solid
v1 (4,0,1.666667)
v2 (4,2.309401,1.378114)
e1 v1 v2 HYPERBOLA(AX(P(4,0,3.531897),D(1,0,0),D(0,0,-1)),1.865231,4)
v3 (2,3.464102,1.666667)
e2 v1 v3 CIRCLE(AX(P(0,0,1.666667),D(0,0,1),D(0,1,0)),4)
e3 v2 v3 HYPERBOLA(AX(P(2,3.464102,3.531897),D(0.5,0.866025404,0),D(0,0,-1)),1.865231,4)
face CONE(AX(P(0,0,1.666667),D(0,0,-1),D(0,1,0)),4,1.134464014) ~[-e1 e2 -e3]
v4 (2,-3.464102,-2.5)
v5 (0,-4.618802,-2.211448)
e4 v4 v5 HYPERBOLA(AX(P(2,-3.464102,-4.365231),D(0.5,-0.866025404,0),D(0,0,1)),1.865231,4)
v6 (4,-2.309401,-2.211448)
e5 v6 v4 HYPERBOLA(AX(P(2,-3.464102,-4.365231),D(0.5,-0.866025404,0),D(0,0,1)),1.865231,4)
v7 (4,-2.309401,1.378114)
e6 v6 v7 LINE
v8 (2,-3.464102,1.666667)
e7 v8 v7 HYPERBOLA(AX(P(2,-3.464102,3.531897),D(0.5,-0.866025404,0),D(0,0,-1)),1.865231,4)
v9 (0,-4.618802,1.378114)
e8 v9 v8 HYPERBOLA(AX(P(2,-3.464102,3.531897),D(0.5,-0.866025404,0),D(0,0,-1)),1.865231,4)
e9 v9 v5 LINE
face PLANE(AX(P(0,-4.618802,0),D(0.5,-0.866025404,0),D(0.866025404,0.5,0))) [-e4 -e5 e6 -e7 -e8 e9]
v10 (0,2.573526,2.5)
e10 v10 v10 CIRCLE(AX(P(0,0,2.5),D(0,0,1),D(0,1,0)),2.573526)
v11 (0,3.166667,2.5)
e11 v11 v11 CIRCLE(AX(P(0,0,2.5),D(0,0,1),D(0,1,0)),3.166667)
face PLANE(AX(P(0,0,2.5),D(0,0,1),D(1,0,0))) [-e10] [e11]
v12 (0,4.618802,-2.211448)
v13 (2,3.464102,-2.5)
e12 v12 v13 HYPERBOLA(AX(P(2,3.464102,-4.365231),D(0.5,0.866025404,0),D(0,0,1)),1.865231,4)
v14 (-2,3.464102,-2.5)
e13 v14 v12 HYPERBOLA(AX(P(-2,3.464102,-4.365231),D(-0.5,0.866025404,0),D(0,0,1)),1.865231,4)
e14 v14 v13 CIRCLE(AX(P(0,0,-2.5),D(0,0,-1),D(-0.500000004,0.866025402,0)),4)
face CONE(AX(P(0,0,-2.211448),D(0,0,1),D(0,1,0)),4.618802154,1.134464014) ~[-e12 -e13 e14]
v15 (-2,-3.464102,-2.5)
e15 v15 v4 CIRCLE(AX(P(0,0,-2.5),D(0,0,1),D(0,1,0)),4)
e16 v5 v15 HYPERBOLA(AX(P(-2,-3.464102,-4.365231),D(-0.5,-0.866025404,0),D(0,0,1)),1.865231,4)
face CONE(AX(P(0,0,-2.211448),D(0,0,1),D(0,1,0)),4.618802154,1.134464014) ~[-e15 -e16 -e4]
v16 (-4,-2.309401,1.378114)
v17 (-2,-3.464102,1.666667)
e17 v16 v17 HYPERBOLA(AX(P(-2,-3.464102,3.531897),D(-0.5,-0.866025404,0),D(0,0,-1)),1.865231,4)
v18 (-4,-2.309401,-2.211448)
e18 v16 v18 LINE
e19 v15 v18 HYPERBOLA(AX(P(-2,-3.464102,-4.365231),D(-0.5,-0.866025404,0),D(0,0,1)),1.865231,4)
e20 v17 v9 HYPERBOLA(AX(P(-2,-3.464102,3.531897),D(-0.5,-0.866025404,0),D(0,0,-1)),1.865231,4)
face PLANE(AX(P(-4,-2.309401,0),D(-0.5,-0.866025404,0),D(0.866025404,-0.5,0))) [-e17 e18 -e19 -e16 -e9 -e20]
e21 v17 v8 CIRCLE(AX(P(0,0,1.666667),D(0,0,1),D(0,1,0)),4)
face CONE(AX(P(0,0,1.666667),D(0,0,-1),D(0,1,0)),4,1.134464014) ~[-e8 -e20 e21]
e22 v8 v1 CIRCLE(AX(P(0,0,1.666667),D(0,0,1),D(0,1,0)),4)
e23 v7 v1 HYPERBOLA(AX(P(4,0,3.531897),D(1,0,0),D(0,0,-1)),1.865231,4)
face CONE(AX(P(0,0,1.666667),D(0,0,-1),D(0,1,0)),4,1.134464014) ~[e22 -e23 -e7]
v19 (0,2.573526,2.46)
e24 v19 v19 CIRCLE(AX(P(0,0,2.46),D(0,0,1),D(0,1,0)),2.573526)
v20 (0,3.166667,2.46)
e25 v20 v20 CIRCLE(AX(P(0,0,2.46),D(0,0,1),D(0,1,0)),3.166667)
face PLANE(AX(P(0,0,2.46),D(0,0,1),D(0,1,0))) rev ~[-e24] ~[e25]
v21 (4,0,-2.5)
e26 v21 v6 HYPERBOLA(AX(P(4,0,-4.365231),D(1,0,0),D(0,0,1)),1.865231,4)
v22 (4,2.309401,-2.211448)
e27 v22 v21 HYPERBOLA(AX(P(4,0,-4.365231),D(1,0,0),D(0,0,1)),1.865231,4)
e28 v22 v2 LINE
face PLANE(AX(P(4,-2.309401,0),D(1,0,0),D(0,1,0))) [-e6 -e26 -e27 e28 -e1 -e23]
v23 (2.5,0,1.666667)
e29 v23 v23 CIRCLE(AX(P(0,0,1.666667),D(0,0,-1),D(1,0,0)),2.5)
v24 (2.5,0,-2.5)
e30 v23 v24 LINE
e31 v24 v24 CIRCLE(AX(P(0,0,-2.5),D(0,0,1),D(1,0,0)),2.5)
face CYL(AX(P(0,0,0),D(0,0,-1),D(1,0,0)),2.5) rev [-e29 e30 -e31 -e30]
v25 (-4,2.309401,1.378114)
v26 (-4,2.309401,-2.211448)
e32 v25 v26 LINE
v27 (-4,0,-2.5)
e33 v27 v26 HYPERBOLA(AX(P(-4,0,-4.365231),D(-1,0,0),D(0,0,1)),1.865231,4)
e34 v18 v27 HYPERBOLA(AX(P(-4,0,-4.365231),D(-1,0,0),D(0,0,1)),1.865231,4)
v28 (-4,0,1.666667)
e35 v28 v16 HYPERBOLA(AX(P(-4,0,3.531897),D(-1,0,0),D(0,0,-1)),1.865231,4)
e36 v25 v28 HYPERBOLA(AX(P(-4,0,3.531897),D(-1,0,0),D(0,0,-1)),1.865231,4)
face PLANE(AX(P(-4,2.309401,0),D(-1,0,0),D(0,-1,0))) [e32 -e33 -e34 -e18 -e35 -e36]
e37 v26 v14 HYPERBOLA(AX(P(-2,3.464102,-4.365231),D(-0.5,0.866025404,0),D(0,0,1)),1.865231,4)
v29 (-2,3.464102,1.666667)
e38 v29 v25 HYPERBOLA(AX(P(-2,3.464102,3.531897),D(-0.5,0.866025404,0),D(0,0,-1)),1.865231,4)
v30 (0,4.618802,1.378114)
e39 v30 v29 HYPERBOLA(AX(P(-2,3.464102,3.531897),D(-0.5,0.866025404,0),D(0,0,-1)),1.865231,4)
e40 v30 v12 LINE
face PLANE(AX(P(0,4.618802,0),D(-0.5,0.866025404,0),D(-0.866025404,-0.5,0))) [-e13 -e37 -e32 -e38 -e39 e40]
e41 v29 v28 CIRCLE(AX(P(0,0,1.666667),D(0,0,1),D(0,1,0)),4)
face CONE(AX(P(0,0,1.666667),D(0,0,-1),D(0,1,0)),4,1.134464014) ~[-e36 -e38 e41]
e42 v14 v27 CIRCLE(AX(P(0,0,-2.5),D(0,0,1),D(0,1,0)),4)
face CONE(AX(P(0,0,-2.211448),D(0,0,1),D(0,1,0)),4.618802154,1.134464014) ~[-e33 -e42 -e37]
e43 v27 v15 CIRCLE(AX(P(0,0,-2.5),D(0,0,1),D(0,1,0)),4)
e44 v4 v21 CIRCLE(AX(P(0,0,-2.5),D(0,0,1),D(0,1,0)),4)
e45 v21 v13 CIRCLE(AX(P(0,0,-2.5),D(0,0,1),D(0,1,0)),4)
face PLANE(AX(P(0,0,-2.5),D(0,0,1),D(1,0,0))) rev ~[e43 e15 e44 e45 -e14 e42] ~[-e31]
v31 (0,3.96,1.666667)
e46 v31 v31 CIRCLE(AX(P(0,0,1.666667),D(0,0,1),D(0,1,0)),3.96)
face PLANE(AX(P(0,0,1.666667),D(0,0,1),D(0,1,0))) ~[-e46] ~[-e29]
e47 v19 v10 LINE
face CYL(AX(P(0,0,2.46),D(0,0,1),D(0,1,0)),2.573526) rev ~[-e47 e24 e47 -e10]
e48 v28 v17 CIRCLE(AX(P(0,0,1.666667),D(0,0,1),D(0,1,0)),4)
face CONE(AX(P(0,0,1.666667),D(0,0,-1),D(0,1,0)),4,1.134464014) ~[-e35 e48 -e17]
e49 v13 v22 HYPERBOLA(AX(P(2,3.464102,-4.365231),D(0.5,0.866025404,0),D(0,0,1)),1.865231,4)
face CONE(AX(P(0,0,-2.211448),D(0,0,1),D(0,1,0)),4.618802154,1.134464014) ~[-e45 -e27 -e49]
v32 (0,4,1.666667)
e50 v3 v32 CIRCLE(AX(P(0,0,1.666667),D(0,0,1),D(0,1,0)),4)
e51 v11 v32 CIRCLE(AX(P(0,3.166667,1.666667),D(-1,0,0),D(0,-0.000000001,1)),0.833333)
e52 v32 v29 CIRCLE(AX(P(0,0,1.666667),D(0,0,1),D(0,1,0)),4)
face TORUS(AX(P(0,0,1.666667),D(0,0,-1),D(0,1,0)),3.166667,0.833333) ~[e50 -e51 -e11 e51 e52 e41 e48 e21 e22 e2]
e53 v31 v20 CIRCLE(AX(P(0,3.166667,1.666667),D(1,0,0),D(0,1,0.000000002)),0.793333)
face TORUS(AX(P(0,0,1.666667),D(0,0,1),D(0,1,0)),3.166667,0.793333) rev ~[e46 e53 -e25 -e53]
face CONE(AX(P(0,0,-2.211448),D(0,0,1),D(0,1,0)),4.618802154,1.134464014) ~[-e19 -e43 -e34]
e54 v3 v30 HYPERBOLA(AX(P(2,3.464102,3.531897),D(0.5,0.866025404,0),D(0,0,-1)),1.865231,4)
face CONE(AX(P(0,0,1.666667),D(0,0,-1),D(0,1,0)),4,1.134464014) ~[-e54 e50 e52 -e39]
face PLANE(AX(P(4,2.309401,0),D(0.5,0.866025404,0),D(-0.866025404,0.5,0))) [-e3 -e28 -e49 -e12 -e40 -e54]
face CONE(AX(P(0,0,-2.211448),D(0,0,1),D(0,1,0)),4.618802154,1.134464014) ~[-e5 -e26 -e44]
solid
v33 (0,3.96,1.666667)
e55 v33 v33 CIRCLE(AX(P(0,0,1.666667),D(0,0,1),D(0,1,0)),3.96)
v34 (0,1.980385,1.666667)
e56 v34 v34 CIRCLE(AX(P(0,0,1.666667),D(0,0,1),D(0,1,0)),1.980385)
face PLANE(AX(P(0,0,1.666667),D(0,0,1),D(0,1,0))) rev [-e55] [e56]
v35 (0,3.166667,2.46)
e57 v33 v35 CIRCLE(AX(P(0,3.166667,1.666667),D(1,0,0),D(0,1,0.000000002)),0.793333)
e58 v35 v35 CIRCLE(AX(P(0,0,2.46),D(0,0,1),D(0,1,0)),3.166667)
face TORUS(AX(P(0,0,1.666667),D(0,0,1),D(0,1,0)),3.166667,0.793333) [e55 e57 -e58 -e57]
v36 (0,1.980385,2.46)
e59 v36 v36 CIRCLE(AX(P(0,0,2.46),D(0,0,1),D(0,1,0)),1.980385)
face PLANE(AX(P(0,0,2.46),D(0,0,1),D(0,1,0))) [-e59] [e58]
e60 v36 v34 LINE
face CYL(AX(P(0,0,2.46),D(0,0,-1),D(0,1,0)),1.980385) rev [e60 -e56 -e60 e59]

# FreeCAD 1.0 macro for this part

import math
import FreeCAD as App
import Part
import Sketcher
from FreeCAD import Vector
Q = App.Units.Quantity


def add_polygon(sketch, points):
    """Adds a closed chain of lines whose ends are joined by coincident constraints."""
    first, n = sketch.GeometryCount, len(points)
    for a, b in zip(points, points[1:] + points[:1]):
        sketch.addGeometry(Part.LineSegment(App.Vector(*a, 0), App.Vector(*b, 0)), False)
    for i in range(n):
        sketch.addConstraint(Sketcher.Constraint("Coincident", first + i, 2, first + (i + 1) % n, 1))

doc = App.newDocument("Part")
body = doc.addObject("PartDesign::Body", "Body")

sketch1 = doc.addObject("Sketcher::SketchObject", "Sketch")
body.addObject(sketch1)
sketch1.AttachmentSupport = (doc.XY_Plane, [""])
sketch1.MapMode = "FlatFace"
add_polygon(sketch1, [(0, -4.6), (4, -2.3), (4, 2.3), (0, 4.6), (-4, 2.3), (-4, -2.3)])
sketch1.addGeometry(Part.Circle(Vector(0, 0, 0), Vector(0, 0, 1), 2.5), False)
sketch1.addConstraint(Sketcher.Constraint("Vertical", 1))
sketch1.addConstraint(Sketcher.Constraint("Vertical", 4))
sketch1.addConstraint(Sketcher.Constraint("Coincident", 6, 3, -1, 1))
sketch1.addConstraint(Sketcher.Constraint("Symmetric", 0, 2, 3, 2, -1, 1))
sketch1.addConstraint(Sketcher.Constraint("Symmetric", 2, 2, 5, 2, -1, 1))
sketch1.addConstraint(Sketcher.Constraint("PointOnObject", 2, 2, -2))
sketch1.addConstraint(Sketcher.Constraint("Parallel", 2, 5))
sketch1.addConstraint(Sketcher.Constraint("Horizontal", 1, 2, 3, 2))
sketch1.addConstraint(Sketcher.Constraint("Diameter", 6, 5.0))
sketch1.addConstraint(Sketcher.Constraint("Angle", 0, Q("30 deg")))
sketch1.addConstraint(Sketcher.Constraint("DistanceX", -1, 1, 0, 2, 4.0))
sketch1.addConstraint(Sketcher.Constraint("DistanceY", 0, 2, -1, 1, 2.309401))
pad1 = doc.addObject("PartDesign::Pad", "Pad")
body.addObject(pad1)
pad1.Profile = sketch1
pad1.Length = 5
pad1.Midplane = True

sketch2 = doc.addObject("Sketcher::SketchObject", "Sketch001")
body.addObject(sketch2)
sketch2.AttachmentSupport = (doc.YZ_Plane, [""])
sketch2.MapMode = "FlatFace"
sketch2.addGeometry(Part.LineSegment(Vector(5.9, -3.8, 0), Vector(5.9, 3.8, 0)), False)
sketch2.addGeometry(Part.LineSegment(Vector(5.9, 3.8, 0), Vector(3.2, 3.8, 0)), False)
sketch2.addGeometry(Part.LineSegment(Vector(3.2, 3.8, 0), Vector(3.2, 2.5, 0)), False)
sketch2.addGeometry(Part.ArcOfCircle(Part.Circle(Vector(3.2, 1.7, 0), Vector(0, 0, 1), 0.8), math.radians(0), math.radians(90)), False)
sketch2.addGeometry(Part.LineSegment(Vector(4, 1.7, 0), Vector(4.6, 1.4, 0)), False)
sketch2.addGeometry(Part.LineSegment(Vector(4.6, 1.4, 0), Vector(4.6, -2.2, 0)), False)
sketch2.addGeometry(Part.LineSegment(Vector(4.6, -2.2, 0), Vector(4, -2.5, 0)), False)
sketch2.addGeometry(Part.LineSegment(Vector(4, -2.5, 0), Vector(0, -2.5, 0)), False)
sketch2.addGeometry(Part.LineSegment(Vector(0, -2.5, 0), Vector(0, -3.8, 0)), False)
sketch2.addGeometry(Part.LineSegment(Vector(0, -3.8, 0), Vector(5.9, -3.8, 0)), False)
sketch2.addGeometry(Part.LineSegment(Vector(2.6, 3.8, 0), Vector(0, 3.8, 0)), False)
sketch2.addGeometry(Part.LineSegment(Vector(0, 3.8, 0), Vector(0, 1.7, 0)), False)
sketch2.addGeometry(Part.LineSegment(Vector(0, 1.7, 0), Vector(4, 1.7, 0)), False)
sketch2.addGeometry(Part.ArcOfCircle(Part.Circle(Vector(3.2, 1.7, 0), Vector(0, 0, 1), 0.8), math.radians(0), math.radians(90)), False)
sketch2.addGeometry(Part.LineSegment(Vector(3.2, 2.5, 0), Vector(2.6, 2.5, 0)), False)
sketch2.addGeometry(Part.LineSegment(Vector(2.6, 2.5, 0), Vector(2.6, 3.8, 0)), False)
sketch2.addConstraint(Sketcher.Constraint("Coincident", 0, 2, 1, 1))
sketch2.addConstraint(Sketcher.Constraint("Coincident", 1, 2, 2, 1))
sketch2.addConstraint(Sketcher.Constraint("Coincident", 2, 2, 3, 2))
sketch2.addConstraint(Sketcher.Constraint("Coincident", 3, 1, 4, 1))
sketch2.addConstraint(Sketcher.Constraint("Coincident", 4, 2, 5, 1))
sketch2.addConstraint(Sketcher.Constraint("Coincident", 5, 2, 6, 1))
sketch2.addConstraint(Sketcher.Constraint("Coincident", 6, 2, 7, 1))
sketch2.addConstraint(Sketcher.Constraint("Coincident", 7, 2, 8, 1))
sketch2.addConstraint(Sketcher.Constraint("Coincident", 8, 2, 9, 1))
sketch2.addConstraint(Sketcher.Constraint("Coincident", 9, 2, 0, 1))
sketch2.addConstraint(Sketcher.Constraint("Coincident", 10, 2, 11, 1))
sketch2.addConstraint(Sketcher.Constraint("Coincident", 11, 2, 12, 1))
sketch2.addConstraint(Sketcher.Constraint("Coincident", 12, 2, 13, 1))
sketch2.addConstraint(Sketcher.Constraint("Tangent", 13, 2, 14, 1))
sketch2.addConstraint(Sketcher.Constraint("Coincident", 14, 2, 15, 1))
sketch2.addConstraint(Sketcher.Constraint("Coincident", 15, 2, 10, 1))
sketch2.addConstraint(Sketcher.Constraint("Vertical", 0))
sketch2.addConstraint(Sketcher.Constraint("Horizontal", 1))
sketch2.addConstraint(Sketcher.Constraint("Vertical", 2))
sketch2.addConstraint(Sketcher.Constraint("Vertical", 5))
sketch2.addConstraint(Sketcher.Constraint("Horizontal", 7))
sketch2.addConstraint(Sketcher.Constraint("Vertical", 8))
sketch2.addConstraint(Sketcher.Constraint("Horizontal", 9))
sketch2.addConstraint(Sketcher.Constraint("Horizontal", 10))
sketch2.addConstraint(Sketcher.Constraint("Vertical", 11))
sketch2.addConstraint(Sketcher.Constraint("Horizontal", 12))
sketch2.addConstraint(Sketcher.Constraint("Horizontal", 14))
sketch2.addConstraint(Sketcher.Constraint("Vertical", 15))
sketch2.addConstraint(Sketcher.Constraint("Coincident", 13, 3, 3, 3))
sketch2.addConstraint(Sketcher.Constraint("Symmetric", 8, 2, 10, 2, -1, 1))
sketch2.addConstraint(Sketcher.Constraint("PointOnObject", 7, 2, -2))
sketch2.addConstraint(Sketcher.Constraint("Horizontal", 13, 3, 3, 1))
sketch2.addConstraint(Sketcher.Constraint("Horizontal", 1, 2, 10, 2))
sketch2.addConstraint(Sketcher.Constraint("Horizontal", 3, 1, 11, 2))
sketch2.addConstraint(Sketcher.Constraint("Vertical", 13, 3, 1, 2))
sketch2.addConstraint(Sketcher.Constraint("Vertical", 3, 1, 6, 2))
sketch2.addConstraint(Sketcher.Constraint("Equal", 2, 8))
sketch2.addConstraint(Sketcher.Constraint("Equal", 4, 6))
sketch2.addConstraint(Sketcher.Constraint("DistanceX", 7, 2, 7, 1, 4.0))
sketch2.addConstraint(Sketcher.Constraint("Angle", 4, Q("-25 deg")))
sketch2.addConstraint(Sketcher.Constraint("DistanceX", 12, 1, 12, 2, 3.96))
sketch2.addConstraint(Sketcher.Constraint("DistanceY", 0, 1, 0, 2, 7.54))
sketch2.addConstraint(Sketcher.Constraint("DistanceY", 2, 2, 2, 1, 1.27))
sketch2.addConstraint(Sketcher.Constraint("DistanceX", 4, 2, 0, 2, 1.27))
sketch2.addConstraint(Sketcher.Constraint("Radius", 3, 0.833333))
sketch2.addConstraint(Sketcher.Constraint("DistanceX", 14, 2, 14, 1, 0.593141))
sketch2.addConstraint(Sketcher.Constraint("DistanceX", 1, 2, 1, 1, 2.722135))
groove = doc.addObject("PartDesign::Groove", "Groove")
body.addObject(groove)
groove.Profile = sketch2
groove.ReferenceAxis = (sketch2, ["V_Axis"])
groove.Angle = 360
body2 = doc.addObject("PartDesign::Body", "Body001")

sketch3 = doc.addObject("Sketcher::SketchObject", "Sketch002")
body2.addObject(sketch3)
sketch3.AttachmentSupport = (doc.getObject("YZ_Plane001"), [""])
sketch3.MapMode = "FlatFace"
sketch3.addGeometry(Part.LineSegment(Vector(3.2, 2.5, 0), Vector(2, 2.5, 0)), False)
sketch3.addGeometry(Part.LineSegment(Vector(2, 2.5, 0), Vector(2, 1.7, 0)), False)
sketch3.addGeometry(Part.LineSegment(Vector(2, 1.7, 0), Vector(4, 1.7, 0)), False)
sketch3.addGeometry(Part.ArcOfCircle(Part.Circle(Vector(3.2, 1.7, 0), Vector(0, 0, 1), 0.8), math.radians(0), math.radians(90)), False)
sketch3.addConstraint(Sketcher.Constraint("Coincident", 0, 2, 1, 1))
sketch3.addConstraint(Sketcher.Constraint("Coincident", 1, 2, 2, 1))
sketch3.addConstraint(Sketcher.Constraint("Coincident", 2, 2, 3, 1))
sketch3.addConstraint(Sketcher.Constraint("Tangent", 3, 2, 0, 1))
sketch3.addConstraint(Sketcher.Constraint("Horizontal", 0))
sketch3.addConstraint(Sketcher.Constraint("Vertical", 1))
sketch3.addConstraint(Sketcher.Constraint("Horizontal", 2))
sketch3.addConstraint(Sketcher.Constraint("Horizontal", 3, 3, 1, 2))
sketch3.addConstraint(Sketcher.Constraint("DistanceY", -1, 1, 0, 2, 2.46))
sketch3.addConstraint(Sketcher.Constraint("DistanceX", -1, 1, 2, 2, 3.96))
sketch3.addConstraint(Sketcher.Constraint("Radius", 3, 0.793333))
sketch3.addConstraint(Sketcher.Constraint("DistanceX", 0, 2, 0, 1, 1.186282))
revolution = doc.addObject("PartDesign::Revolution", "Revolution")
body2.addObject(revolution)
revolution.Profile = sketch3
revolution.ReferenceAxis = (sketch3, ["V_Axis"])
revolution.Angle = 360

doc.recompute()
